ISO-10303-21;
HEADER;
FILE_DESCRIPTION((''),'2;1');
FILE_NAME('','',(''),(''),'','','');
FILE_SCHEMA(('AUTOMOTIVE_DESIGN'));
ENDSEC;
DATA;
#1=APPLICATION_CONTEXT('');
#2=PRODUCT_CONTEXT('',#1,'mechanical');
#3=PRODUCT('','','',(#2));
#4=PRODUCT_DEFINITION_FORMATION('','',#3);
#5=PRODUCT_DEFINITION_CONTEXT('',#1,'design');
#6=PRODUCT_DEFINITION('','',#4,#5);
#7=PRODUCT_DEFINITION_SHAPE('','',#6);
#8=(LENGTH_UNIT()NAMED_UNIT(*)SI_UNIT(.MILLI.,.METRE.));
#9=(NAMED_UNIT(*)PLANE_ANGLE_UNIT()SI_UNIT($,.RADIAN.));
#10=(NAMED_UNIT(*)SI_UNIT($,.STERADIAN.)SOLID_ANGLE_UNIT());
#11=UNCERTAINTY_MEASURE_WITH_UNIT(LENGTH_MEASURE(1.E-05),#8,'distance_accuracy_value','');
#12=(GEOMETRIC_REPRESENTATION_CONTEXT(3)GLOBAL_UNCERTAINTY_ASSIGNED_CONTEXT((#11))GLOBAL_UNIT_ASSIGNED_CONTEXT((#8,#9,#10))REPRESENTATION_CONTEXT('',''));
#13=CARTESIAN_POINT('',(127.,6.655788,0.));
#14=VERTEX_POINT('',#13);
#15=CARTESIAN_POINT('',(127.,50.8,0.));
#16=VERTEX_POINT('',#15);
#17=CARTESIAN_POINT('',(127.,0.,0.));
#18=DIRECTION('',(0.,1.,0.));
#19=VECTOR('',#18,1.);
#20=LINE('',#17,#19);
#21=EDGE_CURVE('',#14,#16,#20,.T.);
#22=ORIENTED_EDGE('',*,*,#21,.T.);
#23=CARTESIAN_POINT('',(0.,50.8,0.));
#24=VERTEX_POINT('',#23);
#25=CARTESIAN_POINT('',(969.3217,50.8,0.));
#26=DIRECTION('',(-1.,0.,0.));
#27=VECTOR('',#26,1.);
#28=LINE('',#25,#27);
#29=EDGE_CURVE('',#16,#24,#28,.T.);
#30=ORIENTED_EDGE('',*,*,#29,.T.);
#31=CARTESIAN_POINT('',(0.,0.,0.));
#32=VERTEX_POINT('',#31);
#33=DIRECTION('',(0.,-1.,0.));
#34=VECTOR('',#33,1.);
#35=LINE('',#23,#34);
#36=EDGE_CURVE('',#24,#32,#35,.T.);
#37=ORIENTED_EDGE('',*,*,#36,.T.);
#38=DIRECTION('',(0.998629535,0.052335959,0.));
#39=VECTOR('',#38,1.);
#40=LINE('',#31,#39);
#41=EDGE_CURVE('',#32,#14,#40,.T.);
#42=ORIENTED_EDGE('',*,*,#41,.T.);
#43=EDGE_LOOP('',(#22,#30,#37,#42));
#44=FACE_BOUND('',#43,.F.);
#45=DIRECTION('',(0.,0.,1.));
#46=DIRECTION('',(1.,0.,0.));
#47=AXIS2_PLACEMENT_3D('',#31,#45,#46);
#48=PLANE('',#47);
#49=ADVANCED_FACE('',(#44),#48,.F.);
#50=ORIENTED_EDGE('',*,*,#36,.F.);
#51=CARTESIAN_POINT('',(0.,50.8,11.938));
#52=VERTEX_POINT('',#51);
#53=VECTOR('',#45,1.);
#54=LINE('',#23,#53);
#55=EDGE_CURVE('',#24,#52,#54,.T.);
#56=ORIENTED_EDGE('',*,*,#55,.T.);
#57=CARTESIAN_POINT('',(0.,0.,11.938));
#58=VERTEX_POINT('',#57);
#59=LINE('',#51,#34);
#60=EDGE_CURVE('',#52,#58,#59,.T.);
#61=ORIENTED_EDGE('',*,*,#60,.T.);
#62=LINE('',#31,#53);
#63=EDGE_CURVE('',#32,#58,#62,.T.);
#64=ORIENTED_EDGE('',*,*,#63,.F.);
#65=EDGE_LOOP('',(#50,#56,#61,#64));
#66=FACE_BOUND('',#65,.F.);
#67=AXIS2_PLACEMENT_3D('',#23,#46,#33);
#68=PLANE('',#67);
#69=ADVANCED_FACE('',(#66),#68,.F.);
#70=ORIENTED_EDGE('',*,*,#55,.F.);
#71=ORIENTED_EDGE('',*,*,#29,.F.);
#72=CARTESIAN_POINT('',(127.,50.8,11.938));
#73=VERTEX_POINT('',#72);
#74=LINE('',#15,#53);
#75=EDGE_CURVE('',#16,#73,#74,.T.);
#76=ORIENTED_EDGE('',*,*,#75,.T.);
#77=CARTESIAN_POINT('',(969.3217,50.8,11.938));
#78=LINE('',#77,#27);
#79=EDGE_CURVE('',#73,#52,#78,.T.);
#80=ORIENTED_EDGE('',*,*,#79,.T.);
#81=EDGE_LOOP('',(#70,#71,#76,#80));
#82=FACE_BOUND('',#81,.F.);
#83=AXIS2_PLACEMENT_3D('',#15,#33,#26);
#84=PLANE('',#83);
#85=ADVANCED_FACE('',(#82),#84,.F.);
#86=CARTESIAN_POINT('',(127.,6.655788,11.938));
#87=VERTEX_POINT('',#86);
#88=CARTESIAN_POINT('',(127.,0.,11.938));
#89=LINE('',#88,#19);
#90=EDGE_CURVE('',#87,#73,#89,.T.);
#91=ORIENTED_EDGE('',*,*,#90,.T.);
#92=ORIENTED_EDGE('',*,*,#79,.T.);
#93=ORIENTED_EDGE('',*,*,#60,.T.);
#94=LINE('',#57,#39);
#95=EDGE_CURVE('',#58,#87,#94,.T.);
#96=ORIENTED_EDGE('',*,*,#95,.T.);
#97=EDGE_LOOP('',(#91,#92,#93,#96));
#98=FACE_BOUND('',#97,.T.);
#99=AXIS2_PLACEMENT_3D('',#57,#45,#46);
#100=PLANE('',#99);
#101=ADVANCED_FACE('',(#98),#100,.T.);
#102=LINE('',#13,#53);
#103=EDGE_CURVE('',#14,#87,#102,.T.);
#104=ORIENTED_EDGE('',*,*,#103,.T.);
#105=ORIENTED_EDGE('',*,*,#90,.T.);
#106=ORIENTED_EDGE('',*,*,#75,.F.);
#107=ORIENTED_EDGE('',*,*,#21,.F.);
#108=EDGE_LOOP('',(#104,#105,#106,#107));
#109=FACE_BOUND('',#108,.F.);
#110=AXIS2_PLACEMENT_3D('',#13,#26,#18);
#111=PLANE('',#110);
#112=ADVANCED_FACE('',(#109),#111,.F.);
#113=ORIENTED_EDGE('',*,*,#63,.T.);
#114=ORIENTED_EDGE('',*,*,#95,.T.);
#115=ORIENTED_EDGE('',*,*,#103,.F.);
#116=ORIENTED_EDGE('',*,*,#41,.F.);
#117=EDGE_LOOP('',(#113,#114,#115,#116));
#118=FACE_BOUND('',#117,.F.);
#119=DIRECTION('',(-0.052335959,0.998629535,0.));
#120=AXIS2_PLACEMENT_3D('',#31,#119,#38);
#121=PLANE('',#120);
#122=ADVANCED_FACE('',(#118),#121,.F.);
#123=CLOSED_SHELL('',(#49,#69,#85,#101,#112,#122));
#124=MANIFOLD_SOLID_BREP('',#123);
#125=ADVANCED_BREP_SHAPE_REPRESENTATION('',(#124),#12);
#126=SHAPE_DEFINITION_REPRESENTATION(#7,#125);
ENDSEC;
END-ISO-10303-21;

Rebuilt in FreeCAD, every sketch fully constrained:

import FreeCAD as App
import Part
import Sketcher
from FreeCAD import Vector
Q = App.Units.Quantity

doc = App.newDocument("Part")
params = doc.addObject("Spreadsheet::Sheet", "Params")
for row, (alias, value) in enumerate([
    ("sketch1_width", "5 in"),
    ("sketch1_height", "2 in"),
    ("pad1_length", "0.47 in"),
], start=1):
    params.set(f"A{row}", alias)
    params.set(f"B{row}", "=" + value)
    params.setAlias(f"B{row}", alias)

body = doc.addObject("PartDesign::Body", "Body")

# Sketch on XY plane
sketch1 = body.newObject("Sketcher::SketchObject", "Sketch")
sketch1.AttachmentSupport = (doc.getObject("XY_Plane"), [""])
sketch1.MapMode = "FlatFace"
sketch1.addGeometry([
    Part.LineSegment(Vector(0, 51, 0), Vector(0, 0, 0)),
    Part.LineSegment(Vector(0, 0, 0), Vector(127, 7, 0)),
    Part.LineSegment(Vector(127, 7, 0), Vector(127, 51, 0)),
    Part.LineSegment(Vector(127, 51, 0), Vector(0, 51, 0)),
], False)
sketch1.addConstraint([
    Sketcher.Constraint("Coincident", 0, 2, 1, 1),
    Sketcher.Constraint("Coincident", 1, 2, 2, 1),
    Sketcher.Constraint("Coincident", 2, 2, 3, 1),
    Sketcher.Constraint("Coincident", 3, 2, 0, 1),
    Sketcher.Constraint("Vertical", 0),
    Sketcher.Constraint("Vertical", 2),
    Sketcher.Constraint("Horizontal", 3),
    Sketcher.Constraint("Coincident", 0, 2, -1, 1),
    Sketcher.Constraint("DistanceX", 3, 2, 3, 1, Q("5 in")),
    Sketcher.Constraint("DistanceY", 0, 2, 0, 1, Q("2 in")),
    Sketcher.Constraint("Angle", 1, Q("3 deg")),
])
sketch1.setExpression("Constraints[8]", "Params.sketch1_width")
sketch1.setExpression("Constraints[9]", "Params.sketch1_height")
pad1 = body.newObject("PartDesign::Pad", "Pad")
pad1.Profile = sketch1
pad1.setExpression("Length", "Params.pad1_length")

doc.recompute()
